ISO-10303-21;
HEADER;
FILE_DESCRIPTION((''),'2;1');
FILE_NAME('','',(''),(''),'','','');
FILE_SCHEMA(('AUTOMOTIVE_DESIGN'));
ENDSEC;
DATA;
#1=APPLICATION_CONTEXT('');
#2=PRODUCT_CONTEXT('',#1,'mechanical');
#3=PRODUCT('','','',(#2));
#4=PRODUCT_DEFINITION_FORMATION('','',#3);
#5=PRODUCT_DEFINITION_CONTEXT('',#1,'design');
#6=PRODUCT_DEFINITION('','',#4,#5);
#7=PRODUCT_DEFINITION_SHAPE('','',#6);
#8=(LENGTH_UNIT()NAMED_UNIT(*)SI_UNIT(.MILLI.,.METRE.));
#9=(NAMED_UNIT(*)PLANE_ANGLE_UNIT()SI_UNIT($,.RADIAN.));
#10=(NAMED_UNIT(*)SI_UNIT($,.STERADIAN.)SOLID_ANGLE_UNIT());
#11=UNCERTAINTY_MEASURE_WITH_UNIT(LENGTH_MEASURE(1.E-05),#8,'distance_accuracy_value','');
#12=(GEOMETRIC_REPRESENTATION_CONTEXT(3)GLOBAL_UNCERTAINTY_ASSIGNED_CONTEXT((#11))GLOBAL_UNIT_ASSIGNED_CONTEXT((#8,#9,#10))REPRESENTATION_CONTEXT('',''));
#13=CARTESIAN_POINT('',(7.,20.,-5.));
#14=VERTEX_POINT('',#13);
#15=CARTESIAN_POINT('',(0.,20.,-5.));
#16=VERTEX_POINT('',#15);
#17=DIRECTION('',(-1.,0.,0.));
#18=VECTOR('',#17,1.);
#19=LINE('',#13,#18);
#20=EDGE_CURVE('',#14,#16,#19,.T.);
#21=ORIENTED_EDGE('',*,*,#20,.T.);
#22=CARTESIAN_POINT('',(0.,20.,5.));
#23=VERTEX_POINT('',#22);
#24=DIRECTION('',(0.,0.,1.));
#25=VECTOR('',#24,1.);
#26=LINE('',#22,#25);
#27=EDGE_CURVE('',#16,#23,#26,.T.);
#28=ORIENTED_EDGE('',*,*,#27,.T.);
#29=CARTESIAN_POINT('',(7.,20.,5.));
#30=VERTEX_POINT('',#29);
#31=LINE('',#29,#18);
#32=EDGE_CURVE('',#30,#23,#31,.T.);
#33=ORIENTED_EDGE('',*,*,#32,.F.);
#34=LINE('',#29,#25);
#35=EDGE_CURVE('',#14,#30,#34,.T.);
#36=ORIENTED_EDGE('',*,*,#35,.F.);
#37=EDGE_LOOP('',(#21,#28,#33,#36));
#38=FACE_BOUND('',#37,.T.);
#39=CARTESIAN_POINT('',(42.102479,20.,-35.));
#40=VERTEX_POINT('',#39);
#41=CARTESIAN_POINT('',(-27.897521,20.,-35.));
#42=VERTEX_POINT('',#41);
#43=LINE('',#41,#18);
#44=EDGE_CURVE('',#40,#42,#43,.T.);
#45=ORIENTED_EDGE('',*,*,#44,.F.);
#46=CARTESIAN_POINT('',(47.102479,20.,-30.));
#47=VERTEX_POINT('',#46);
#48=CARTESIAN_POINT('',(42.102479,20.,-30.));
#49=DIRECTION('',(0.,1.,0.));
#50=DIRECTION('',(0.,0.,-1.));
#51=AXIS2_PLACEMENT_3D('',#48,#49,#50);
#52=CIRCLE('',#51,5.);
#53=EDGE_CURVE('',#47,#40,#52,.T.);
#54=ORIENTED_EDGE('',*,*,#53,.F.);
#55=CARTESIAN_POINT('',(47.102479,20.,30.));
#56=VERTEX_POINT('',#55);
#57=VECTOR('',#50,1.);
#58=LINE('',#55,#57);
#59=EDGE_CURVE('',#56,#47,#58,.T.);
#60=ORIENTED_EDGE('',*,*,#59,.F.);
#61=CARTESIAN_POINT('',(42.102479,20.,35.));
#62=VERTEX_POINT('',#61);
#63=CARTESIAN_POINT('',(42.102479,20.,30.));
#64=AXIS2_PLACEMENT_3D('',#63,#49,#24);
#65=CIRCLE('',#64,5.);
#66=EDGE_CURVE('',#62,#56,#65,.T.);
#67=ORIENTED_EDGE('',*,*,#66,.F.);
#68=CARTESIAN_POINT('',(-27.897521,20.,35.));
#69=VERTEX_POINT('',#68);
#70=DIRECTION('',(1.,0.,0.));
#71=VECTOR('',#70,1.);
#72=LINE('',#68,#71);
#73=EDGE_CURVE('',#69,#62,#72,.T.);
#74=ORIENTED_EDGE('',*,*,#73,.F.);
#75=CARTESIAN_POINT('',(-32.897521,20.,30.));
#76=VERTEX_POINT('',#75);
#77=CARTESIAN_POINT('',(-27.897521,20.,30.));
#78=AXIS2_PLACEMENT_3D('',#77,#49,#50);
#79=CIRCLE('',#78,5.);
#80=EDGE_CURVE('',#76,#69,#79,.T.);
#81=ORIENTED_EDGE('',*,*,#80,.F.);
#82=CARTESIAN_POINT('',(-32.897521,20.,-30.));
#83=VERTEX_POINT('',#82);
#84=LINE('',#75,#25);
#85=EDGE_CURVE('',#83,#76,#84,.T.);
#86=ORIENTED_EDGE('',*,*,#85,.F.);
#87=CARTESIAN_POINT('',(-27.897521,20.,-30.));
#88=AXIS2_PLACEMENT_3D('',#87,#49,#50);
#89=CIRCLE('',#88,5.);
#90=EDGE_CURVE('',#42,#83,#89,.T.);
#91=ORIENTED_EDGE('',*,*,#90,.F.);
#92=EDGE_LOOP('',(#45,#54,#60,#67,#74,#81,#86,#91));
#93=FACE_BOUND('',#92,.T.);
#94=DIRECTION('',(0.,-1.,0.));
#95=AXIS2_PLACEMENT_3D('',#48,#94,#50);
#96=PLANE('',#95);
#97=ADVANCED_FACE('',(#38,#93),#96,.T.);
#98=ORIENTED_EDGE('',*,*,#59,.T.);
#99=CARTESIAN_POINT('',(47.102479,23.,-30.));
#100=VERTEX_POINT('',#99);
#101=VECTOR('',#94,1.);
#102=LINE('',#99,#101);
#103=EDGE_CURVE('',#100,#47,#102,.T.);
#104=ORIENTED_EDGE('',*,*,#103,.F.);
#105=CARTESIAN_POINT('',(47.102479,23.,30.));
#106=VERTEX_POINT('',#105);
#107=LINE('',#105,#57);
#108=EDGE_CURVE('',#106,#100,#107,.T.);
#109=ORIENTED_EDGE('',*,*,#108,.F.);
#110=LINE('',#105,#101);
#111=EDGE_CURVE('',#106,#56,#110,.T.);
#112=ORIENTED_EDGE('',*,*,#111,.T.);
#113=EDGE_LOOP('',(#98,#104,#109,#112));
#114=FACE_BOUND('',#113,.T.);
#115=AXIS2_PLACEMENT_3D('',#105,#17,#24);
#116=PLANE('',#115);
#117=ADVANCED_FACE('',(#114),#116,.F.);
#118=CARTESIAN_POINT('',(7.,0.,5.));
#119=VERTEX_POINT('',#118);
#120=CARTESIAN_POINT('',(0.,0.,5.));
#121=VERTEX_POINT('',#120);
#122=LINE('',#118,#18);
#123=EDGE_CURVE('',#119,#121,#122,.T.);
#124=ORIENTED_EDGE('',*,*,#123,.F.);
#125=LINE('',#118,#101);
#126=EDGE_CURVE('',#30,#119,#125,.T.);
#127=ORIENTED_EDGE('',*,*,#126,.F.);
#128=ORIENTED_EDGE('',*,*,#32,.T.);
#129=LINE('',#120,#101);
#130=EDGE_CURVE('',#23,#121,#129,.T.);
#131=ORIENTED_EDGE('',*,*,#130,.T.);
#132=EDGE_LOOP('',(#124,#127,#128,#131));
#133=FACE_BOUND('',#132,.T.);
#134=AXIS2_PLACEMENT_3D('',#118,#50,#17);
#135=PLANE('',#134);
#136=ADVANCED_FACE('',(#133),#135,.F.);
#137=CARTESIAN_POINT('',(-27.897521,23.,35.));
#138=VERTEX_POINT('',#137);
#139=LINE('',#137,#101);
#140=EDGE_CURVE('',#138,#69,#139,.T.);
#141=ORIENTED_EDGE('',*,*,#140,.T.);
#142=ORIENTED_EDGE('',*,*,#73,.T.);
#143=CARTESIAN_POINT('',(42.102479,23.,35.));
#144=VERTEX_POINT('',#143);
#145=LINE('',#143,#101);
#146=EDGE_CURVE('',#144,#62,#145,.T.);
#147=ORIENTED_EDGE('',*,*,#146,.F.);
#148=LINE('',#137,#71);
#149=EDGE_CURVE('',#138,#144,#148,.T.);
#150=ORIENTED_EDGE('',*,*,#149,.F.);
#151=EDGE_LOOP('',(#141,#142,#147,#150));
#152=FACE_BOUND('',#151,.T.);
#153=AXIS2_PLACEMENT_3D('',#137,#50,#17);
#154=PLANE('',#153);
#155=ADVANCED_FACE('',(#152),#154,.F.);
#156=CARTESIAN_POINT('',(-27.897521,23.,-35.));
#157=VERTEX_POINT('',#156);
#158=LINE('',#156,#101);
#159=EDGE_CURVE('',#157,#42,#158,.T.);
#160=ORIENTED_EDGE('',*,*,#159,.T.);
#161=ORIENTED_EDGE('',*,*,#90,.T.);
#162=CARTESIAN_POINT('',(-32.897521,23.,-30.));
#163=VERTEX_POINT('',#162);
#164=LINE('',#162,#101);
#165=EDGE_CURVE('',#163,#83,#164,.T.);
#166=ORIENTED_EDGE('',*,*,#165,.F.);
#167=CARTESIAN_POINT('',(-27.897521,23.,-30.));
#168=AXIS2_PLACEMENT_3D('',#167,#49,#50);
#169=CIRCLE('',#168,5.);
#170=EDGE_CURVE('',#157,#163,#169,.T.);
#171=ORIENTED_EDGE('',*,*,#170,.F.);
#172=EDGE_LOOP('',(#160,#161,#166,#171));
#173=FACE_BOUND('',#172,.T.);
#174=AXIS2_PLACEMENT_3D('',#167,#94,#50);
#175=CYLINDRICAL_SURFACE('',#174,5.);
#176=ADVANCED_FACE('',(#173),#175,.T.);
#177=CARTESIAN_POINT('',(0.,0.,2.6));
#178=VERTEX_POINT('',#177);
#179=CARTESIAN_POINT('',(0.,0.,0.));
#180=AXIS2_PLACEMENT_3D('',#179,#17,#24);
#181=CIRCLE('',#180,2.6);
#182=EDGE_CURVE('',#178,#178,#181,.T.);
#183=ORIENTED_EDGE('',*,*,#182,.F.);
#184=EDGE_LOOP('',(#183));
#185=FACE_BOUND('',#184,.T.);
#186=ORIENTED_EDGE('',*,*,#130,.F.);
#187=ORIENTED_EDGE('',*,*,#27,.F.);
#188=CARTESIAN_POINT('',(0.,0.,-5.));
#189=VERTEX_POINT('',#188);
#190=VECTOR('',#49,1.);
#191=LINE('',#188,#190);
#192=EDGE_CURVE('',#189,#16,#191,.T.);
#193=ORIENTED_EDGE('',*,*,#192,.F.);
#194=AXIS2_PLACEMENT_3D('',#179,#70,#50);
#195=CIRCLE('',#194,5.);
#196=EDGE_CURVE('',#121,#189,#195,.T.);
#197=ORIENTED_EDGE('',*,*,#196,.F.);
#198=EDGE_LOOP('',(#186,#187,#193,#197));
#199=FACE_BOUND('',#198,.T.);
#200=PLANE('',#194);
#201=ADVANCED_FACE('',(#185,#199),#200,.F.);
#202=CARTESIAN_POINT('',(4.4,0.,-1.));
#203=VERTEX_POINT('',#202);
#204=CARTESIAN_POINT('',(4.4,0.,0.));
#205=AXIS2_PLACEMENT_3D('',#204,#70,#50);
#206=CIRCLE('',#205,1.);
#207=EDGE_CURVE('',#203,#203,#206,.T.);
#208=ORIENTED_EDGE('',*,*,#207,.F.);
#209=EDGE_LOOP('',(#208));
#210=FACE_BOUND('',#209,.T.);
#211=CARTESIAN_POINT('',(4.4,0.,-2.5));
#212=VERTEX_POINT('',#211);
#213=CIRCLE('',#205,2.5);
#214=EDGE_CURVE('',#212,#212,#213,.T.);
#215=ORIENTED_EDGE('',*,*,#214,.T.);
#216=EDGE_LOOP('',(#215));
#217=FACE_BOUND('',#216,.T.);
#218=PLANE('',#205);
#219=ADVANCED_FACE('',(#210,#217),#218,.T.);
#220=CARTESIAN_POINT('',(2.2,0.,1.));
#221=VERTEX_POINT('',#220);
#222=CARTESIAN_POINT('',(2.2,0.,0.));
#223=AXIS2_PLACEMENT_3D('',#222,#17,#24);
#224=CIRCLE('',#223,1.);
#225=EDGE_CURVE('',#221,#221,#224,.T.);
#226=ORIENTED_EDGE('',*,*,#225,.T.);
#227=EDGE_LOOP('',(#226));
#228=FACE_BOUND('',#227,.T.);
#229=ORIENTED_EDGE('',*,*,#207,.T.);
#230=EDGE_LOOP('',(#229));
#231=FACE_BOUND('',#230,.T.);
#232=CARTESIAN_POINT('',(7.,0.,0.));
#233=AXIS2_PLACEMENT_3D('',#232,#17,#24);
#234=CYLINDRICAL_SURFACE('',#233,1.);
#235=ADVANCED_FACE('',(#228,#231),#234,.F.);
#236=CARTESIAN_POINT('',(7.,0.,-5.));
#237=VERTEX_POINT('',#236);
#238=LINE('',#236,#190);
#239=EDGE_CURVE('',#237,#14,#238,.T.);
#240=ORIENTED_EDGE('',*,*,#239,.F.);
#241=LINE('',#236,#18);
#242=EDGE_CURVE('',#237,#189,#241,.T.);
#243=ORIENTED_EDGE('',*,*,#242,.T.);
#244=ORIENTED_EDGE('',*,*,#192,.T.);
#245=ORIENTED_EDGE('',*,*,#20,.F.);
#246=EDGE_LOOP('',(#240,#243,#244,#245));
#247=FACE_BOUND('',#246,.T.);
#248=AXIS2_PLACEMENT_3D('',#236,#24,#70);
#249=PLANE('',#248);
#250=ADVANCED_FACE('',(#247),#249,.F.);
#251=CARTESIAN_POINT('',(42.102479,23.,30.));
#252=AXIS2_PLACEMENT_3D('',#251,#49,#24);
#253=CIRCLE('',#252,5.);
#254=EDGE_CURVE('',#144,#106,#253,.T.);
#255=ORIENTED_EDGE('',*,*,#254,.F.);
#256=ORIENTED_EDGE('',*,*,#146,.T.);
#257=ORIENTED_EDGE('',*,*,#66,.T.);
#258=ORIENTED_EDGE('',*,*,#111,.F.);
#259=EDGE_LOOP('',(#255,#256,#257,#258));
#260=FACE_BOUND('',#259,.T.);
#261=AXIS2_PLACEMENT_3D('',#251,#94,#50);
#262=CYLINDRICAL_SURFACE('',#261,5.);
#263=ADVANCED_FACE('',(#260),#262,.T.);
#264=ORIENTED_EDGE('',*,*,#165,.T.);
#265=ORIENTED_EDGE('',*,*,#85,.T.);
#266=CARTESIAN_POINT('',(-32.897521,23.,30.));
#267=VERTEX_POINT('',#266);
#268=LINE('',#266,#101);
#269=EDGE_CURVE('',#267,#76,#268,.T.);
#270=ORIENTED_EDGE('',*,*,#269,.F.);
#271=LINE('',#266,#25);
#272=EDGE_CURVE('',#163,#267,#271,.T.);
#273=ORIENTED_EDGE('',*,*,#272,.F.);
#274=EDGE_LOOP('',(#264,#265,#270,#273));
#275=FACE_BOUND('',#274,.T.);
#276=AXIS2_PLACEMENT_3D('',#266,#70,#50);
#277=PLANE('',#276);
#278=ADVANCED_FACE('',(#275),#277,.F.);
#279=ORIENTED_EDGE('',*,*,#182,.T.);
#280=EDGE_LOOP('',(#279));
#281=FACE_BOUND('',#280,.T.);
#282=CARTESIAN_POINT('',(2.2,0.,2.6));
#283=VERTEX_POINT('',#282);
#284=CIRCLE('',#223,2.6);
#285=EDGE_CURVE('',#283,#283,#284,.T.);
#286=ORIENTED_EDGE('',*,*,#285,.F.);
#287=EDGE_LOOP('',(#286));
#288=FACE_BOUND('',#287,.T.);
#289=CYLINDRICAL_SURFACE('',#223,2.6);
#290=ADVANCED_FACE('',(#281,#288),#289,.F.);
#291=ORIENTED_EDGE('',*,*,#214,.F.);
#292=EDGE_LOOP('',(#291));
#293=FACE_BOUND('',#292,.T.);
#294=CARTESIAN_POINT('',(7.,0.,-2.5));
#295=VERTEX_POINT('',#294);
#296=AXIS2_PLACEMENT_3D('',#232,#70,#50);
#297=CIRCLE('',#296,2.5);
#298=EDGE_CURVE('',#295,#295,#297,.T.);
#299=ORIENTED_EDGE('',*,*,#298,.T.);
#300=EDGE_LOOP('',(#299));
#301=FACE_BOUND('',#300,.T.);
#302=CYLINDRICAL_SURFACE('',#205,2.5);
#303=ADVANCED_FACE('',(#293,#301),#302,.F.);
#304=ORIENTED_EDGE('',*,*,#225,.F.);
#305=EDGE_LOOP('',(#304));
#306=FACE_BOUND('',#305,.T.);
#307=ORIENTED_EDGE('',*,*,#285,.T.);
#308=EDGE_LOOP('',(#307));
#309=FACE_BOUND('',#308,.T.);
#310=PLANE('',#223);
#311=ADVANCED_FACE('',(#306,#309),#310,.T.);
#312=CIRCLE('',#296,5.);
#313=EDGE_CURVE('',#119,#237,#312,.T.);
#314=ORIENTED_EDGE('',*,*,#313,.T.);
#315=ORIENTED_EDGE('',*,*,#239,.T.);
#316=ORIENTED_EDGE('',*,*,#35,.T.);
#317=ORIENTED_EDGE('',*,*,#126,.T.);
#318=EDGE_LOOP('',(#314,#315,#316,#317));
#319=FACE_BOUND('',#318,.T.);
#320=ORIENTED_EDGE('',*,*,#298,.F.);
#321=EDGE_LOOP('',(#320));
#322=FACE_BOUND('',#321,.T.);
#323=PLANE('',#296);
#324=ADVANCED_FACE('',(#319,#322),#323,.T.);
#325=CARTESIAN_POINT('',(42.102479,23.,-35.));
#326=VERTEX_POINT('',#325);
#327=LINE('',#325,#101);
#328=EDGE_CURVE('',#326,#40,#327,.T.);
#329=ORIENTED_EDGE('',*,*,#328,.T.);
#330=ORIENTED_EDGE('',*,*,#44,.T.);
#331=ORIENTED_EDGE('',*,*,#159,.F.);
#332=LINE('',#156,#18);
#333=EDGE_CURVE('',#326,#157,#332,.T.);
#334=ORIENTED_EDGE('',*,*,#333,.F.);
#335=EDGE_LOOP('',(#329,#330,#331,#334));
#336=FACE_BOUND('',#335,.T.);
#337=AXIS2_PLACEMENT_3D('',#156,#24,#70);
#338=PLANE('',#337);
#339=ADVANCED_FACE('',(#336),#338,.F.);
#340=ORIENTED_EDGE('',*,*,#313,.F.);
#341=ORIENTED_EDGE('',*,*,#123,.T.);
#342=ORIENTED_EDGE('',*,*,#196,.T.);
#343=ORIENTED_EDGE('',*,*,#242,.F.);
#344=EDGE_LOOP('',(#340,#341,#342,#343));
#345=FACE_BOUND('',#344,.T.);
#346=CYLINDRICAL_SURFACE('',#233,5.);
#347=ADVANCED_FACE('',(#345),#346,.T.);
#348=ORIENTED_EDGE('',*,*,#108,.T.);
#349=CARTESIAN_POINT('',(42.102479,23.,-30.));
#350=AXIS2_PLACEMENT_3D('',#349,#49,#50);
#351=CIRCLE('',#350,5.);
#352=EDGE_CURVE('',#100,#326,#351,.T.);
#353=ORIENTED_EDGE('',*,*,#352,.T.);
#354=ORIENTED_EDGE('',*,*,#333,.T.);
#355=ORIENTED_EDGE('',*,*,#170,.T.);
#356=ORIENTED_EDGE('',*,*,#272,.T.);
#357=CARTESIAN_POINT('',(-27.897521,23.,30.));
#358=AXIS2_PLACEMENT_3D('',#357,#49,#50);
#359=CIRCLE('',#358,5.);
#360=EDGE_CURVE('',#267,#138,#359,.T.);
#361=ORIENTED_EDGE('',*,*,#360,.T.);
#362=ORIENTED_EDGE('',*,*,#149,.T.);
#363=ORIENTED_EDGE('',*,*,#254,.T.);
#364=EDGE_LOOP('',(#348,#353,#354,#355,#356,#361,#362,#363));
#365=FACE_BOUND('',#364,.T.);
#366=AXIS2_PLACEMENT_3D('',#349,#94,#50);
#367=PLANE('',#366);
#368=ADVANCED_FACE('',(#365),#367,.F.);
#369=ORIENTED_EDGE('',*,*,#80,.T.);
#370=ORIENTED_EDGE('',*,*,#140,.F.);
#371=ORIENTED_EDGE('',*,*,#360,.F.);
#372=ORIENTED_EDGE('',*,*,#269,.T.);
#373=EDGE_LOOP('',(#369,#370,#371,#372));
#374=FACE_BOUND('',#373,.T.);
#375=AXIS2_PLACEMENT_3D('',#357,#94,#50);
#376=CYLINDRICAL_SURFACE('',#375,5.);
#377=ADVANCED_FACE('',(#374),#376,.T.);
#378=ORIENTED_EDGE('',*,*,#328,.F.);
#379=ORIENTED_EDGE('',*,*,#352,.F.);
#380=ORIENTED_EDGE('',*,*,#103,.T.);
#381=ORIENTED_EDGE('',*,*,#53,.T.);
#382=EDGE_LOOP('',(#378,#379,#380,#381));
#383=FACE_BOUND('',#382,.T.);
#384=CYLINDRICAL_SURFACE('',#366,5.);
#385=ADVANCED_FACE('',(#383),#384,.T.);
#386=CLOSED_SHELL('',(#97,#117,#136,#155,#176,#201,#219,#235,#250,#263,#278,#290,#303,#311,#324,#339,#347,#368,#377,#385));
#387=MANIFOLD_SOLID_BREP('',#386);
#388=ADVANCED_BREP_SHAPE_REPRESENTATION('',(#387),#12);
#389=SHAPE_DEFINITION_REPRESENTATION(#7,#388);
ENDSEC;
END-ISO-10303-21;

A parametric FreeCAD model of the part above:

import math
import FreeCAD as App
import Part
import Sketcher

V = App.Vector

doc = App.newDocument("Part")
params = doc.addObject("Spreadsheet::Sheet", "Params")
for row, (alias, value) in enumerate([
    ("sketch1_diameter", "2 mm"),
    ("sketch1_radius", "5 mm"),
    ("sketch1_width", "20 mm"),
    ("pad1_length", "7 mm"),
    ("sketch2_radius", "5 mm"),
    ("sketch2_width", "70 mm"),
    ("sketch2_height", "60 mm"),
    ("pad2_length", "3 mm"),
    ("sketch3_diameter", "5 mm"),
    ("pocket1_length", "2.6 mm"),
    ("sketch4_diameter", "5.2 mm"),
    ("pocket2_length", "2.2 mm"),
], start=1):
    params.set(f"A{row}", alias)
    params.set(f"B{row}", "=" + value)
    params.setAlias(f"B{row}", alias)

body = doc.addObject("PartDesign::Body", "Body")

sketch1 = body.newObject("Sketcher::SketchObject", "Sketch")
sketch1.AttachmentSupport = (doc.getObject("YZ_Plane"), [""])
sketch1.MapMode = "FlatFace"
sketch1.addGeometry([
    Part.LineSegment(V(20, 5, 0), V(0, 5, 0)),
    Part.ArcOfCircle(Part.Circle(V(0, 0, 0), V(0, 0, 1), 5), math.radians(90), math.radians(270)),
    Part.LineSegment(V(0, -5, 0), V(20, -5, 0)),
    Part.LineSegment(V(20, -5, 0), V(20, 5, 0)),
    Part.Circle(V(0, 0, 0), V(0, 0, 1), 1),
], False)
sketch1.addConstraint([
    Sketcher.Constraint("Tangent", 0, 2, 1, 1),
    Sketcher.Constraint("Tangent", 1, 2, 2, 1),
    Sketcher.Constraint("Coincident", 2, 2, 3, 1),
    Sketcher.Constraint("Coincident", 3, 2, 0, 1),
    Sketcher.Constraint("Horizontal", 0),
    Sketcher.Constraint("Horizontal", 2),
    Sketcher.Constraint("Vertical", 3),
    Sketcher.Constraint("Coincident", 1, 3, -1, 1),
    Sketcher.Constraint("Coincident", 4, 3, -1, 1),
    Sketcher.Constraint("Diameter", 4, 2.0),
    Sketcher.Constraint("Radius", 1, 5.0),
    Sketcher.Constraint("DistanceX", 0, 2, 0, 1, 20.0),
])
sketch1.setExpression("Constraints[9]", "Params.sketch1_diameter")
sketch1.setExpression("Constraints[10]", "Params.sketch1_radius")
sketch1.setExpression("Constraints[11]", "Params.sketch1_width")
pad1 = body.newObject("PartDesign::Pad", "Pad")
pad1.Profile = sketch1
pad1.setExpression("Length", "Params.pad1_length")

sketch2 = body.newObject("Sketcher::SketchObject", "Sketch001")
sketch2.AttachmentSupport = (doc.getObject("XZ_Plane"), [""])
sketch2.MapMode = "FlatFace"
sketch2.AttachmentOffset = App.Placement(V(0, 0, -20), App.Rotation())
sketch2.addGeometry([
    Part.LineSegment(V(-28, 35, 0), V(42, 35, 0)),
    Part.ArcOfCircle(Part.Circle(V(42, 30, 0), V(0, 0, 1), 5), math.radians(0), math.radians(90)),
    Part.LineSegment(V(47, 30, 0), V(47, -30, 0)),
    Part.ArcOfCircle(Part.Circle(V(42, -30, 0), V(0, 0, 1), 5), math.radians(-90), math.radians(0)),
    Part.LineSegment(V(42, -35, 0), V(-28, -35, 0)),
    Part.ArcOfCircle(Part.Circle(V(-28, -30, 0), V(0, 0, 1), 5), math.radians(180), math.radians(270)),
    Part.LineSegment(V(-33, -30, 0), V(-33, 30, 0)),
    Part.ArcOfCircle(Part.Circle(V(-28, 30, 0), V(0, 0, 1), 5), math.radians(90), math.radians(180)),
], False)
sketch2.addConstraint([
    Sketcher.Constraint("Tangent", 0, 2, 1, 2),
    Sketcher.Constraint("Tangent", 1, 1, 2, 1),
    Sketcher.Constraint("Tangent", 2, 2, 3, 2),
    Sketcher.Constraint("Tangent", 3, 1, 4, 1),
    Sketcher.Constraint("Tangent", 4, 2, 5, 2),
    Sketcher.Constraint("Tangent", 5, 1, 6, 1),
    Sketcher.Constraint("Tangent", 6, 2, 7, 2),
    Sketcher.Constraint("Tangent", 7, 1, 0, 1),
    Sketcher.Constraint("Horizontal", 0),
    Sketcher.Constraint("Vertical", 2),
    Sketcher.Constraint("Horizontal", 4),
    Sketcher.Constraint("Vertical", 6),
    Sketcher.Constraint("Equal", 1, 3),
    Sketcher.Constraint("Equal", 3, 5),
    Sketcher.Constraint("Equal", 5, 7),
    Sketcher.Constraint("Radius", 1, 5.0),
    Sketcher.Constraint("DistanceX", 0, 1, 0, 2, 70.0),
    Sketcher.Constraint("DistanceY", 2, 2, 2, 1, 60.0),
    Sketcher.Constraint("DistanceY", -1, 1, 1, 3, 30.0),
    Sketcher.Constraint("DistanceX", -1, 1, 1, 3, 42.102479),
])
sketch2.setExpression("Constraints[15]", "Params.sketch2_radius")
sketch2.setExpression("Constraints[16]", "Params.sketch2_width")
sketch2.setExpression("Constraints[17]", "Params.sketch2_height")
pad2 = body.newObject("PartDesign::Pad", "Pad001")
pad2.Profile = sketch2
pad2.setExpression("Length", "Params.pad2_length")
pad2.Reversed = True

sketch3 = body.newObject("Sketcher::SketchObject", "Sketch002")
sketch3.AttachmentSupport = (doc.getObject("YZ_Plane"), [""])
sketch3.MapMode = "FlatFace"
sketch3.AttachmentOffset = App.Placement(V(0, 0, 7), App.Rotation())
sketch3.addGeometry(Part.Circle(V(0, 0, 0), V(0, 0, 1), 2.5), False)
sketch3.addConstraint([
    Sketcher.Constraint("Coincident", 0, 3, -1, 1),
    Sketcher.Constraint("Diameter", 0, 5.0),
])
sketch3.setExpression("Constraints[1]", "Params.sketch3_diameter")
pocket1 = body.newObject("PartDesign::Pocket", "Pocket")
pocket1.Profile = sketch3
pocket1.setExpression("Length", "Params.pocket1_length")

sketch4 = body.newObject("Sketcher::SketchObject", "Sketch003")
sketch4.AttachmentSupport = (doc.getObject("YZ_Plane"), [""])
sketch4.MapMode = "FlatFace"
sketch4.addGeometry(Part.Circle(V(0, 0, 0), V(0, 0, 1), 2.6), False)
sketch4.addConstraint([
    Sketcher.Constraint("Coincident", 0, 3, -1, 1),
    Sketcher.Constraint("Diameter", 0, 5.2),
])
sketch4.setExpression("Constraints[1]", "Params.sketch4_diameter")
pocket2 = body.newObject("PartDesign::Pocket", "Pocket001")
pocket2.Profile = sketch4
pocket2.setExpression("Length", "Params.pocket2_length")
pocket2.Reversed = True

doc.recompute()
